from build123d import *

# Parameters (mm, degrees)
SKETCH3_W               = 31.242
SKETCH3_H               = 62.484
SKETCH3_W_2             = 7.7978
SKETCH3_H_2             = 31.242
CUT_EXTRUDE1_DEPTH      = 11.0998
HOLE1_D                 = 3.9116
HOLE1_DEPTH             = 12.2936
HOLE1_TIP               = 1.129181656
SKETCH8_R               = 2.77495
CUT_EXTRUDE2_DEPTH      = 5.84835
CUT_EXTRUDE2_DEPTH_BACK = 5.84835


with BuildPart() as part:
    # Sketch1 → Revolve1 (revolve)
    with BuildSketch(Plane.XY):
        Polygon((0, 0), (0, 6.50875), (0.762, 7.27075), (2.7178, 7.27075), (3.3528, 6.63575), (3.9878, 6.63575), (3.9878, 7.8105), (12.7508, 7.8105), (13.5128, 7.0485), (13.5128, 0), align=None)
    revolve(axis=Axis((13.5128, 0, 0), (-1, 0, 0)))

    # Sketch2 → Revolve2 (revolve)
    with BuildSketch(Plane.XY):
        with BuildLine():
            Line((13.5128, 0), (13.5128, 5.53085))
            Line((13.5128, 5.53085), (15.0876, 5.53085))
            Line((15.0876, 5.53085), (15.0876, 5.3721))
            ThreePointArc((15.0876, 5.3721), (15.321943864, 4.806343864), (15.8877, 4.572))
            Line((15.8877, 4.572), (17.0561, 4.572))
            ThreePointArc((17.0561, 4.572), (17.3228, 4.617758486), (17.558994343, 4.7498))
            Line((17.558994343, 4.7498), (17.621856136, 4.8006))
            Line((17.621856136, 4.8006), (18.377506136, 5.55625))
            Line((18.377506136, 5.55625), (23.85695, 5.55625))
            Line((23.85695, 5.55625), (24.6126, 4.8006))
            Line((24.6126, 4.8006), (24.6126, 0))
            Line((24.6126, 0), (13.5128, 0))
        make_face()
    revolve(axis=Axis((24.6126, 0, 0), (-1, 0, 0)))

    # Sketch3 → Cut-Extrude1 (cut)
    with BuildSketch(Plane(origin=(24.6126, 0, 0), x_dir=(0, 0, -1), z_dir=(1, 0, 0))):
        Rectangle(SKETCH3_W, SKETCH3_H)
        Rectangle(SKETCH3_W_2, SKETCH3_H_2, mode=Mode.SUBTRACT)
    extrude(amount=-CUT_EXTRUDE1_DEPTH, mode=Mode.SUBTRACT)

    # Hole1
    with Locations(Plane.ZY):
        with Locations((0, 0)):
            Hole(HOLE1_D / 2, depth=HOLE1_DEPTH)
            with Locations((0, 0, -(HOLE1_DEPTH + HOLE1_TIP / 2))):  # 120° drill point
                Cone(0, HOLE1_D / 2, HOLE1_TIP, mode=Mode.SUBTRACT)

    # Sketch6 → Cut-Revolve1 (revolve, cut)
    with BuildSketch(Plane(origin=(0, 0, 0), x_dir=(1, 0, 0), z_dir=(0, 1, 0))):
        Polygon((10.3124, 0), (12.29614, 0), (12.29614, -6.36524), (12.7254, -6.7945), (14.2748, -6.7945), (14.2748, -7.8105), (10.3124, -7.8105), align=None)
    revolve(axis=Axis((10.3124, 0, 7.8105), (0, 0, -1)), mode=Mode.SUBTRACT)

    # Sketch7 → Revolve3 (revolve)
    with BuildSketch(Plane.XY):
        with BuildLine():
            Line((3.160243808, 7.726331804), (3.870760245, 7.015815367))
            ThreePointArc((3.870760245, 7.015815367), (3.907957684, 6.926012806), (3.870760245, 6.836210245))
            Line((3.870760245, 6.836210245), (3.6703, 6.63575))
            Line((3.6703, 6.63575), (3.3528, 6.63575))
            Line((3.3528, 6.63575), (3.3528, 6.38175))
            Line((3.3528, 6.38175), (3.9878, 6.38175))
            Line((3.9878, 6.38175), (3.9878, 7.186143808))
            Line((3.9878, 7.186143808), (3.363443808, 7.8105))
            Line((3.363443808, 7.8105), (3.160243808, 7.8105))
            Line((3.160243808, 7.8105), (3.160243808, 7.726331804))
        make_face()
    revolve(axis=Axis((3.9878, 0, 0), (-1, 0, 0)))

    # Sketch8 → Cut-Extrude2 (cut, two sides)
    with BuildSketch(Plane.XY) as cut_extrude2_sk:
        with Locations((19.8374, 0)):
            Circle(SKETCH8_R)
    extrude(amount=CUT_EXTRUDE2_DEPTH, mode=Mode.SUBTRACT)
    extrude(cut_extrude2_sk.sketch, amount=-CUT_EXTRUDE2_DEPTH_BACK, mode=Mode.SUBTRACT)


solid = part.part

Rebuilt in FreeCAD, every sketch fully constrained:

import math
import FreeCAD as App
import Part
import Sketcher
from FreeCAD import Vector
Q = App.Units.Quantity

doc = App.newDocument("Part")
body = doc.addObject("PartDesign::Body", "Body")

sketch1 = doc.addObject("Sketcher::SketchObject", "Sketch")
body.addObject(sketch1)
sketch1.AttachmentSupport = (doc.XY_Plane, [""])
sketch1.MapMode = "FlatFace"
sketch1.addGeometry([
    Part.LineSegment(Vector(0, 6.50875, 0), Vector(0, 0, 0)),
    Part.LineSegment(Vector(0, 0, 0), Vector(13.5128, 0, 0)),
    Part.LineSegment(Vector(13.5128, 0, 0), Vector(13.5128, 7.0485, 0)),
    Part.LineSegment(Vector(13.5128, 7.0485, 0), Vector(12.7508, 7.8105, 0)),
    Part.LineSegment(Vector(12.7508, 7.8105, 0), Vector(3.9878, 7.8105, 0)),
    Part.LineSegment(Vector(3.9878, 7.8105, 0), Vector(3.9878, 6.63575, 0)),
    Part.LineSegment(Vector(3.9878, 6.63575, 0), Vector(3.3528, 6.63575, 0)),
    Part.LineSegment(Vector(3.3528, 6.63575, 0), Vector(2.7178, 7.27075, 0)),
    Part.LineSegment(Vector(2.7178, 7.27075, 0), Vector(0.762, 7.27075, 0)),
    Part.LineSegment(Vector(0.762, 7.27075, 0), Vector(0, 6.50875, 0)),
], False)
sketch1.addConstraint([
    Sketcher.Constraint("Coincident", 0, 2, 1, 1),
    Sketcher.Constraint("Coincident", 1, 2, 2, 1),
    Sketcher.Constraint("Coincident", 2, 2, 3, 1),
    Sketcher.Constraint("Coincident", 3, 2, 4, 1),
    Sketcher.Constraint("Coincident", 4, 2, 5, 1),
    Sketcher.Constraint("Coincident", 5, 2, 6, 1),
    Sketcher.Constraint("Coincident", 6, 2, 7, 1),
    Sketcher.Constraint("Coincident", 7, 2, 8, 1),
    Sketcher.Constraint("Coincident", 8, 2, 9, 1),
    Sketcher.Constraint("Coincident", 9, 2, 0, 1),
    Sketcher.Constraint("Vertical", 0),
    Sketcher.Constraint("Horizontal", 1),
    Sketcher.Constraint("Vertical", 2),
    Sketcher.Constraint("Horizontal", 4),
    Sketcher.Constraint("Vertical", 5),
    Sketcher.Constraint("Horizontal", 6),
    Sketcher.Constraint("Horizontal", 8),
    Sketcher.Constraint("Coincident", 0, 2, -1, 1),
    Sketcher.Constraint("Parallel", 3, 7),
    Sketcher.Constraint("Perpendicular", 7, 9),
    Sketcher.Constraint("Equal", 3, 9),
    Sketcher.Constraint("Angle", 3, Q("135 deg")),
    Sketcher.Constraint("DistanceX", 6, 2, 2, 2, Q("0.4 in")),
    Sketcher.Constraint("DistanceX", 1, 1, 1, 2, Q("0.532 in")),
    Sketcher.Constraint("DistanceX", 4, 2, 4, 1, Q("0.345 in")),
    Sketcher.Constraint("DistanceX", 6, 2, 6, 1, Q("0.025 in")),
    Sketcher.Constraint("DistanceX", 8, 2, 8, 1, Q("0.077 in")),
    Sketcher.Constraint("DistanceY", 2, 1, 2, 2, Q("0.2775 in")),
    Sketcher.Constraint("DistanceY", 0, 2, 0, 1, Q("6.50875 mm")),
])
revolution = doc.addObject("PartDesign::Revolution", "Revolution")
body.addObject(revolution)
revolution.Profile = sketch1
revolution.ReferenceAxis = (sketch1, ["H_Axis"])
revolution.Angle = 360

sketch2 = doc.addObject("Sketcher::SketchObject", "Sketch001")
body.addObject(sketch2)
sketch2.AttachmentSupport = (doc.XY_Plane, [""])
sketch2.MapMode = "FlatFace"
sketch2.addGeometry([
    Part.LineSegment(Vector(13.5128, 5.53085, 0), Vector(13.5128, 0, 0)),
    Part.LineSegment(Vector(13.5128, 0, 0), Vector(24.6126, 0, 0)),
    Part.LineSegment(Vector(24.6126, 0, 0), Vector(24.6126, 4.8006, 0)),
    Part.LineSegment(Vector(24.6126, 4.8006, 0), Vector(23.85695, 5.55625, 0)),
    Part.LineSegment(Vector(23.85695, 5.55625, 0), Vector(18.377506, 5.55625, 0)),
    Part.LineSegment(Vector(18.377506, 5.55625, 0), Vector(17.621856, 4.8006, 0)),
    Part.LineSegment(Vector(17.621856, 4.8006, 0), Vector(17.558994, 4.7498, 0)),
    Part.ArcOfCircle(Part.Circle(Vector(17.0561, 5.3721, 0), Vector(0, 0, 1), 0.8001), math.radians(-90), math.radians(-51.057559)),
    Part.LineSegment(Vector(17.0561, 4.572, 0), Vector(15.8877, 4.572, 0)),
    Part.ArcOfCircle(Part.Circle(Vector(15.8877, 5.3721, 0), Vector(0, 0, 1), 0.8001), math.radians(180), math.radians(270)),
    Part.LineSegment(Vector(15.0876, 5.3721, 0), Vector(15.0876, 5.53085, 0)),
    Part.LineSegment(Vector(15.0876, 5.53085, 0), Vector(13.5128, 5.53085, 0)),
], False)
sketch2.addConstraint([
    Sketcher.Constraint("Coincident", 0, 2, 1, 1),
    Sketcher.Constraint("Coincident", 1, 2, 2, 1),
    Sketcher.Constraint("Coincident", 2, 2, 3, 1),
    Sketcher.Constraint("Coincident", 3, 2, 4, 1),
    Sketcher.Constraint("Coincident", 4, 2, 5, 1),
    Sketcher.Constraint("Coincident", 5, 2, 6, 1),
    Sketcher.Constraint("Tangent", 6, 2, 7, 2),
    Sketcher.Constraint("Tangent", 7, 1, 8, 1),
    Sketcher.Constraint("Tangent", 8, 2, 9, 2),
    Sketcher.Constraint("Tangent", 9, 1, 10, 1),
    Sketcher.Constraint("Coincident", 10, 2, 11, 1),
    Sketcher.Constraint("Coincident", 11, 2, 0, 1),
    Sketcher.Constraint("Vertical", 0),
    Sketcher.Constraint("Horizontal", 1),
    Sketcher.Constraint("Vertical", 2),
    Sketcher.Constraint("Horizontal", 4),
    Sketcher.Constraint("Horizontal", 8),
    Sketcher.Constraint("Vertical", 10),
    Sketcher.Constraint("Horizontal", 11),
    Sketcher.Constraint("Equal", 7, 9),
    Sketcher.Constraint("PointOnObject", 0, 2, -1),
    Sketcher.Constraint("Perpendicular", 3, 5),
    Sketcher.Constraint("Horizontal", 2, 2, 5, 2),
    Sketcher.Constraint("Equal", 3, 5),
    Sketcher.Constraint("Radius", 7, Q("0.0315 in")),
    Sketcher.Constraint("DistanceX", 1, 1, 1, 2, Q("0.437 in")),
    Sketcher.Constraint("DistanceX", 8, 2, 8, 1, Q("0.046 in")),
    Sketcher.Constraint("DistanceX", 11, 2, 11, 1, Q("0.062 in")),
    Sketcher.Constraint("DistanceY", 2, 1, 2, 2, Q("0.189 in")),
    Sketcher.Constraint("DistanceY", -1, 1, 7, 1, Q("0.18 in")),
    Sketcher.Constraint("DistanceX", -1, 1, 0, 2, Q("0.532 in")),
    Sketcher.Constraint("DistanceY", -1, 1, 3, 2, Q("0.21875 in")),
    Sketcher.Constraint("DistanceY", -1, 1, 6, 2, Q("0.187 in")),
    Sketcher.Constraint("DistanceY", 0, 2, 0, 1, Q("5.53085 mm")),
])
revolution2 = doc.addObject("PartDesign::Revolution", "Revolution001")
body.addObject(revolution2)
revolution2.Profile = sketch2
revolution2.ReferenceAxis = (sketch2, ["H_Axis"])
revolution2.Angle = 360

sketch3 = doc.addObject("Sketcher::SketchObject", "Sketch002")
body.addObject(sketch3)
sketch3.AttachmentSupport = (doc.YZ_Plane, [""])
sketch3.MapMode = "FlatFace"
sketch3.AttachmentOffset = App.Placement(Vector(0, 0, 0.969 * 25.4), App.Rotation())
sketch3.addGeometry([
    Part.LineSegment(Vector(31.242, 15.621, 0), Vector(-31.242, 15.621, 0)),
    Part.LineSegment(Vector(-31.242, 15.621, 0), Vector(-31.242, -15.621, 0)),
    Part.LineSegment(Vector(-31.242, -15.621, 0), Vector(31.242, -15.621, 0)),
    Part.LineSegment(Vector(31.242, -15.621, 0), Vector(31.242, 15.621, 0)),
    Part.LineSegment(Vector(-15.621, -3.8989, 0), Vector(-15.621, 3.8989, 0)),
    Part.LineSegment(Vector(-15.621, 3.8989, 0), Vector(15.621, 3.8989, 0)),
    Part.LineSegment(Vector(15.621, 3.8989, 0), Vector(15.621, -3.8989, 0)),
    Part.LineSegment(Vector(15.621, -3.8989, 0), Vector(-15.621, -3.8989, 0)),
], False)
sketch3.addConstraint([
    Sketcher.Constraint("Coincident", 0, 2, 1, 1),
    Sketcher.Constraint("Coincident", 1, 2, 2, 1),
    Sketcher.Constraint("Coincident", 2, 2, 3, 1),
    Sketcher.Constraint("Coincident", 3, 2, 0, 1),
    Sketcher.Constraint("Coincident", 4, 2, 5, 1),
    Sketcher.Constraint("Coincident", 5, 2, 6, 1),
    Sketcher.Constraint("Coincident", 6, 2, 7, 1),
    Sketcher.Constraint("Coincident", 7, 2, 4, 1),
    Sketcher.Constraint("Horizontal", 0),
    Sketcher.Constraint("Vertical", 1),
    Sketcher.Constraint("Horizontal", 2),
    Sketcher.Constraint("Vertical", 3),
    Sketcher.Constraint("Vertical", 4),
    Sketcher.Constraint("Horizontal", 5),
    Sketcher.Constraint("Vertical", 6),
    Sketcher.Constraint("Horizontal", 7),
    Sketcher.Constraint("Symmetric", 0, 2, 2, 2, -1, 1),
    Sketcher.Constraint("Symmetric", 4, 2, 6, 2, -1, 1),
    Sketcher.Constraint("Equal", 7, 1),
    Sketcher.Constraint("DistanceX", 0, 2, 0, 1, Q("2.46 in")),
    Sketcher.Constraint("DistanceX", 5, 1, 5, 2, Q("1.23 in")),
    Sketcher.Constraint("DistanceY", 4, 1, 4, 2, Q("0.307 in")),
])
pocket1 = doc.addObject("PartDesign::Pocket", "Pocket")
body.addObject(pocket1)
pocket1.Profile = sketch3
pocket1.Length = Q("0.437 in")

sketch4 = doc.addObject("Sketcher::SketchObject", "Sketch003")
body.addObject(sketch4)
sketch4.AttachmentSupport = (doc.YZ_Plane, [""])
sketch4.MapMode = "FlatFace"
sketch4.addGeometry(Part.Circle(Vector(0, 0, 0), Vector(0, 0, 1), 1.9558), False)
sketch4.addConstraint([
    Sketcher.Constraint("Coincident", 0, 3, -1, 1),
    Sketcher.Constraint("Diameter", 0, Q("0.154 in")),
])
doc.recompute()
hole = doc.addObject("PartDesign::Hole", "Hole")
body.addObject(hole)
hole.Profile = sketch4
hole.ThreadType = "None"
hole.Diameter = Q("0.154 in")
hole.DepthType = "Dimension"
hole.Depth = Q("0.484 in")
hole.DrillPoint = "Angled"
hole.DrillPointAngle = 120
hole.Reversed = True

sketch5 = doc.addObject("Sketcher::SketchObject", "Sketch004")
body.addObject(sketch5)
sketch5.AttachmentSupport = (doc.XZ_Plane, [""])
sketch5.MapMode = "FlatFace"
sketch5.addGeometry([
    Part.LineSegment(Vector(12.29614, 0, 0), Vector(10.3124, 0, 0)),
    Part.LineSegment(Vector(10.3124, 0, 0), Vector(10.3124, 7.8105, 0)),
    Part.LineSegment(Vector(10.3124, 7.8105, 0), Vector(14.2748, 7.8105, 0)),
    Part.LineSegment(Vector(14.2748, 7.8105, 0), Vector(14.2748, 6.7945, 0)),
    Part.LineSegment(Vector(14.2748, 6.7945, 0), Vector(12.7254, 6.7945, 0)),
    Part.LineSegment(Vector(12.7254, 6.7945, 0), Vector(12.29614, 6.36524, 0)),
    Part.LineSegment(Vector(12.29614, 6.36524, 0), Vector(12.29614, 0, 0)),
], False)
sketch5.addGeometry(Part.LineSegment(Vector(10.3124, 7.8105, 0), Vector(10.3124, 0, 0)), True)
sketch5.addConstraint([
    Sketcher.Constraint("Coincident", 0, 2, 1, 1),
    Sketcher.Constraint("Coincident", 1, 2, 2, 1),
    Sketcher.Constraint("Coincident", 2, 2, 3, 1),
    Sketcher.Constraint("Coincident", 3, 2, 4, 1),
    Sketcher.Constraint("Coincident", 4, 2, 5, 1),
    Sketcher.Constraint("Coincident", 5, 2, 6, 1),
    Sketcher.Constraint("Coincident", 6, 2, 0, 1),
    Sketcher.Constraint("Horizontal", 0),
    Sketcher.Constraint("Vertical", 1),
    Sketcher.Constraint("Horizontal", 2),
    Sketcher.Constraint("Vertical", 3),
    Sketcher.Constraint("Horizontal", 4),
    Sketcher.Constraint("Vertical", 6),
    Sketcher.Constraint("Vertical", 7),
    Sketcher.Constraint("Coincident", 7, 1, 1, 2),
    Sketcher.Constraint("PointOnObject", 0, 2, -1),
    Sketcher.Constraint("PointOnObject", 7, 2, -1),
    Sketcher.Constraint("Angle", 5, Q("-135 deg")),
    Sketcher.Constraint("DistanceY", 3, 2, 3, 1, Q("0.04 in")),
    Sketcher.Constraint("DistanceX", 2, 1, 2, 2, Q("0.156 in")),
    Sketcher.Constraint("DistanceX", 4, 2, 4, 1, Q("0.061 in")),
    Sketcher.Constraint("DistanceX", 0, 2, 0, 1, Q("0.0781 in")),
    Sketcher.Constraint("DistanceY", 1, 1, 1, 2, Q("0.3075 in")),
    Sketcher.Constraint("DistanceX", -1, 1, 0, 2, Q("0.406 in")),
])
groove = doc.addObject("PartDesign::Groove", "Groove")
body.addObject(groove)
groove.Profile = sketch5
groove.ReferenceAxis = (sketch5, ["Axis0"])
groove.Angle = 360

sketch6 = doc.addObject("Sketcher::SketchObject", "Sketch005")
body.addObject(sketch6)
sketch6.AttachmentSupport = (doc.XY_Plane, [""])
sketch6.MapMode = "FlatFace"
sketch6.addGeometry([
    Part.LineSegment(Vector(3.160244, 7.726332, 0), Vector(3.87076, 7.015815, 0)),
    Part.ArcOfCircle(Part.Circle(Vector(3.780958, 6.926013, 0), Vector(0, 0, 1), 0.127), math.radians(-45), math.radians(45)),
    Part.LineSegment(Vector(3.87076, 6.83621, 0), Vector(3.6703, 6.63575, 0)),
    Part.LineSegment(Vector(3.6703, 6.63575, 0), Vector(3.3528, 6.63575, 0)),
    Part.LineSegment(Vector(3.3528, 6.63575, 0), Vector(3.3528, 6.38175, 0)),
    Part.LineSegment(Vector(3.3528, 6.38175, 0), Vector(3.9878, 6.38175, 0)),
    Part.LineSegment(Vector(3.9878, 6.38175, 0), Vector(3.9878, 7.186144, 0)),
    Part.LineSegment(Vector(3.9878, 7.186144, 0), Vector(3.363444, 7.8105, 0)),
    Part.LineSegment(Vector(3.363444, 7.8105, 0), Vector(3.160244, 7.8105, 0)),
    Part.LineSegment(Vector(3.160244, 7.8105, 0), Vector(3.160244, 7.726332, 0)),
], False)
sketch6.addConstraint([
    Sketcher.Constraint("Tangent", 0, 2, 1, 2),
    Sketcher.Constraint("Tangent", 1, 1, 2, 1),
    Sketcher.Constraint("Coincident", 2, 2, 3, 1),
    Sketcher.Constraint("Coincident", 3, 2, 4, 1),
    Sketcher.Constraint("Coincident", 4, 2, 5, 1),
    Sketcher.Constraint("Coincident", 5, 2, 6, 1),
    Sketcher.Constraint("Coincident", 6, 2, 7, 1),
    Sketcher.Constraint("Coincident", 7, 2, 8, 1),
    Sketcher.Constraint("Coincident", 8, 2, 9, 1),
    Sketcher.Constraint("Coincident", 9, 2, 0, 1),
    Sketcher.Constraint("Horizontal", 3),
    Sketcher.Constraint("Vertical", 4),
    Sketcher.Constraint("Horizontal", 5),
    Sketcher.Constraint("Vertical", 6),
    Sketcher.Constraint("Horizontal", 8),
    Sketcher.Constraint("Vertical", 9),
    Sketcher.Constraint("Perpendicular", 0, 2),
    Sketcher.Constraint("Perpendicular", 2, 7),
    Sketcher.Constraint("Vertical", 0, 2, 1, 1),
    Sketcher.Constraint("Radius", 1, Q("0.005 in")),
    Sketcher.Constraint("DistanceY", 4, 2, 4, 1, Q("0.01 in")),
    Sketcher.Constraint("DistanceX", 5, 1, 5, 2, Q("0.025 in")),
    Sketcher.Constraint("DistanceX", 8, 2, 8, 1, Q("0.008 in")),
    Sketcher.Constraint("DistanceX", 3, 2, 3, 1, Q("0.0125 in")),
    Sketcher.Constraint("DistanceX", -1, 1, 3, 2, Q("0.132 in")),
    Sketcher.Constraint("DistanceY", -1, 1, 7, 2, Q("0.3075 in")),
    Sketcher.Constraint("DistanceY", 9, 2, 9, 1, Q("0.084168 mm")),
    Sketcher.Constraint("Distance", 0, Q("1.004822 mm")),
    Sketcher.Constraint("DistanceY", 6, 1, 6, 2, Q("0.804394 mm")),
])
revolution3 = doc.addObject("PartDesign::Revolution", "Revolution002")
body.addObject(revolution3)
revolution3.Profile = sketch6
revolution3.ReferenceAxis = (sketch6, ["H_Axis"])
revolution3.Angle = 360

sketch7 = doc.addObject("Sketcher::SketchObject", "Sketch006")
body.addObject(sketch7)
sketch7.AttachmentSupport = (doc.XY_Plane, [""])
sketch7.MapMode = "FlatFace"
sketch7.addGeometry(Part.Circle(Vector(19.8374, 0, 0), Vector(0, 0, 1), 2.77495), False)
sketch7.addConstraint([
    Sketcher.Constraint("PointOnObject", 0, 3, -1),
    Sketcher.Constraint("Diameter", 0, Q("0.2185 in")),
    Sketcher.Constraint("DistanceX", -1, 1, 0, 3, Q("0.781 in")),
])
pocket2 = doc.addObject("PartDesign::Pocket", "Pocket001")
body.addObject(pocket2)
pocket2.Profile = sketch7
pocket2.Type = "ThroughAll"
pocket2.Midplane = True

doc.recompute()
